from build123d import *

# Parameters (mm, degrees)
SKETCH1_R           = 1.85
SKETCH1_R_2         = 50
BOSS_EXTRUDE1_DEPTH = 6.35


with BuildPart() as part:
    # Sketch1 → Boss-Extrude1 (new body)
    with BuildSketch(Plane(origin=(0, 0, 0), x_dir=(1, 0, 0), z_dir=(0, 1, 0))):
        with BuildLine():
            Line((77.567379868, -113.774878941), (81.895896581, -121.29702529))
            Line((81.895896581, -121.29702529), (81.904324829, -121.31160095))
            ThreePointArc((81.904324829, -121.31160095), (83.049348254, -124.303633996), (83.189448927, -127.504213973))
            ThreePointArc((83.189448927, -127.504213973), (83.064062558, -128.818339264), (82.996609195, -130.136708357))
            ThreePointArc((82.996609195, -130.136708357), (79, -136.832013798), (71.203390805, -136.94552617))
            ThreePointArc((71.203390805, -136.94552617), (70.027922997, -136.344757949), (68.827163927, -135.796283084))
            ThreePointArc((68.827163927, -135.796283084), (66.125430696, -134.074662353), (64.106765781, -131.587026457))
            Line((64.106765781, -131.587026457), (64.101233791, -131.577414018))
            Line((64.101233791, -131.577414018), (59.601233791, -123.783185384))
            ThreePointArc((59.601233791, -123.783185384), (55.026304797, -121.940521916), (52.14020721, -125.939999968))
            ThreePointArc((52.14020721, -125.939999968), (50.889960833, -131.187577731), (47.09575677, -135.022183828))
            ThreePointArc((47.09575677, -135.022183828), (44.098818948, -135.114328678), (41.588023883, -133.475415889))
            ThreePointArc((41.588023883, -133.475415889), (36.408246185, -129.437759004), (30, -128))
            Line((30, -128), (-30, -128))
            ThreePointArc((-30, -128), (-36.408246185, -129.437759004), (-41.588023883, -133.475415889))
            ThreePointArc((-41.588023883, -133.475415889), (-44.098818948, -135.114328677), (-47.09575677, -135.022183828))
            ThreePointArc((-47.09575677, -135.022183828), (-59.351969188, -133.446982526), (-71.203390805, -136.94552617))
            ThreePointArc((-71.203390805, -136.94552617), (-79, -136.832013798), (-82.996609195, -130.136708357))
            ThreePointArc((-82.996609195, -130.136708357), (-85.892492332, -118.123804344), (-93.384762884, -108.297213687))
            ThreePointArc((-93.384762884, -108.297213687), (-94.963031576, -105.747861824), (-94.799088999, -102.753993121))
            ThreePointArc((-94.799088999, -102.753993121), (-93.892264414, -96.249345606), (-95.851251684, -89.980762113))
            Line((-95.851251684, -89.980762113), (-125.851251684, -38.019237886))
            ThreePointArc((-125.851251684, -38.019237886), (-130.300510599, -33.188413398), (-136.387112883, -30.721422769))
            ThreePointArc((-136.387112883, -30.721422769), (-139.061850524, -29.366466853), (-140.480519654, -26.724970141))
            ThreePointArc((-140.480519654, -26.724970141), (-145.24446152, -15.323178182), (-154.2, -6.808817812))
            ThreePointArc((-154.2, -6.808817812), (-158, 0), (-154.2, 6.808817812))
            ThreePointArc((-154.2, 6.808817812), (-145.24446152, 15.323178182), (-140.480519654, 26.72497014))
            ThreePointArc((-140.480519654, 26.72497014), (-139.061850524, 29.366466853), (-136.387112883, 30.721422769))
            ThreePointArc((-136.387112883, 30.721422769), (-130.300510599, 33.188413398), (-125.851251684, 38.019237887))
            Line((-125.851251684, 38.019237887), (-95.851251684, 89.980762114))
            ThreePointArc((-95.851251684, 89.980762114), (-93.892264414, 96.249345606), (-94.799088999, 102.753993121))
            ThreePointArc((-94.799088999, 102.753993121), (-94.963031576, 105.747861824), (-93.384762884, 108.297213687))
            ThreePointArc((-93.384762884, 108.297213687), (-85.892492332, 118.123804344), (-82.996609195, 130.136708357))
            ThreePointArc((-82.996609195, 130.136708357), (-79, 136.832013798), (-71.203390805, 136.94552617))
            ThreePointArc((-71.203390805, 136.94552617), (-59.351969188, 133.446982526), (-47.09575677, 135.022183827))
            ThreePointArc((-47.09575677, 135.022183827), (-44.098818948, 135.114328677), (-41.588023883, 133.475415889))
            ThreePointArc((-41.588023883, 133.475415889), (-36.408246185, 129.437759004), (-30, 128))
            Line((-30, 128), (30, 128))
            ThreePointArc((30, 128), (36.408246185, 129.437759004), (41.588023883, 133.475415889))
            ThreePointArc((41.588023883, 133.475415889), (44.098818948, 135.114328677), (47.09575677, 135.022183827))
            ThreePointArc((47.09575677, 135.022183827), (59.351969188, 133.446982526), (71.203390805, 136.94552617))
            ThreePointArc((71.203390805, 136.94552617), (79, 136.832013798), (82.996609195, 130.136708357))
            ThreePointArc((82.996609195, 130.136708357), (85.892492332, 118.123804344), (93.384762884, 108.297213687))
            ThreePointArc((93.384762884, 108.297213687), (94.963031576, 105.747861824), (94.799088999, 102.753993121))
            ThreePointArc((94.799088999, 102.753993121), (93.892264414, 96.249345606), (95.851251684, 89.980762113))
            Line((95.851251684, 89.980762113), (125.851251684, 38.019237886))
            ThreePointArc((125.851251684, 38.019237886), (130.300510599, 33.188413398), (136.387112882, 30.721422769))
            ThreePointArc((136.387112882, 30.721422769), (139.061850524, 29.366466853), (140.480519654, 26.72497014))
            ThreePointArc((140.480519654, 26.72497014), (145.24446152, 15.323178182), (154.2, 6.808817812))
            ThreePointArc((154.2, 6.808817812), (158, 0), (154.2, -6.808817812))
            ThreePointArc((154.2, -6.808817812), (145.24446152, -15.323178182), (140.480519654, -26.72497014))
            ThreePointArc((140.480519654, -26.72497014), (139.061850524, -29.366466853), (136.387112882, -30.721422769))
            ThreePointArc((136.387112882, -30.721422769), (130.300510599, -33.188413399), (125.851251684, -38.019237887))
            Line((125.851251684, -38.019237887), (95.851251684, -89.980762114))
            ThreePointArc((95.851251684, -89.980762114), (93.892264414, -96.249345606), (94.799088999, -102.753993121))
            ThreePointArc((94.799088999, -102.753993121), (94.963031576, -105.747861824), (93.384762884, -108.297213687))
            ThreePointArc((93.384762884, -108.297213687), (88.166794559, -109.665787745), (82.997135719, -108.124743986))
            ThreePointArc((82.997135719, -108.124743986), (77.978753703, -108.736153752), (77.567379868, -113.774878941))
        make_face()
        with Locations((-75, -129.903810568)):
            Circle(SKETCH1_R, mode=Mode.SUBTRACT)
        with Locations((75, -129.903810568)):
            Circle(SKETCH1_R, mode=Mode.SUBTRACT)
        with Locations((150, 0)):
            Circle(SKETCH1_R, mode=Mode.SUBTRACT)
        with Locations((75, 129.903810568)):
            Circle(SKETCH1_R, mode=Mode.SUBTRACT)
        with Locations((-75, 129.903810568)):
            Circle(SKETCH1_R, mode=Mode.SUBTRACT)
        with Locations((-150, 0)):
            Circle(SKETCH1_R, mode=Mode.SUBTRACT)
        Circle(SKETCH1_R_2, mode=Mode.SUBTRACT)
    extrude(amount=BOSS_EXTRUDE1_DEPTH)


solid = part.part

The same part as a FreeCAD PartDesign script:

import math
import FreeCAD as App
import Part
import Sketcher

V = App.Vector
Q = App.Units.Quantity

doc = App.newDocument("Part")
body = doc.addObject("PartDesign::Body", "Body")

# Sketch on XZ plane
sketch1 = body.newObject("Sketcher::SketchObject", "Sketch")
sketch1.AttachmentSupport = (doc.getObject("XZ_Plane"), [""])
sketch1.MapMode = "FlatFace"
sketch1.addGeometry([
    Part.LineSegment(V(81.895897, 121.297025, 0), V(77.56738, 113.774879, 0)),  # 0
    Part.ArcOfCircle(Part.Circle(V(80.862868, 111.507775, 0), V(0, 0, 1), 4), math.radians(145.474294), math.radians(302.246779)),  # 1
    Part.ArcOfCircle(Part.Circle(V(88.332805, 99.667166, 0), V(0, 0, 1), 10), math.radians(59.655653), math.radians(122.246779)),  # 2
    Part.ArcOfCircle(Part.Circle(V(90.118241, 104.511737, 0), V(0, 0, 1), 5), math.radians(-20.582072), math.radians(49.208798)),  # 3
    Part.ArcOfCircle(Part.Circle(V(108.841633, 97.480762, 0), V(0, 0, 1), 15), math.radians(159.417928), math.radians(210)),  # 4
    Part.LineSegment(V(95.851252, 89.980762, 0), V(125.851252, 38.019238, 0)),  # 5
    Part.ArcOfCircle(Part.Circle(V(138.841633, 45.519238, 0), V(0, 0, 1), 15), math.radians(-150), math.radians(-99.417928)),  # 6
    Part.ArcOfCircle(Part.Circle(V(135.56894, 25.788818, 0), V(0, 0, 1), 5), math.radians(10.791202), math.radians(80.582072)),  # 7
    Part.ArcOfCircle(Part.Circle(V(169.95, 32.341885, 0), V(0, 0, 1), 30), math.radians(-169.208798), math.radians(-121.668243)),  # 8
    Part.ArcOfCircle(Part.Circle(V(150, 0, 0), V(0, 0, 1), 8), math.radians(-58.331757), math.radians(58.331757)),  # 9
    Part.ArcOfCircle(Part.Circle(V(169.95, -32.341885, 0), V(0, 0, 1), 30), math.radians(121.668243), math.radians(169.208798)),  # 10
    Part.ArcOfCircle(Part.Circle(V(135.56894, -25.788818, 0), V(0, 0, 1), 5), math.radians(-80.582072), math.radians(-10.791202)),  # 11
    Part.ArcOfCircle(Part.Circle(V(138.841633, -45.519238, 0), V(0, 0, 1), 15), math.radians(99.417928), math.radians(150)),  # 12
    Part.LineSegment(V(125.851252, -38.019238, 0), V(95.851252, -89.980762, 0)),  # 13
    Part.ArcOfCircle(Part.Circle(V(108.841633, -97.480762, 0), V(0, 0, 1), 15), math.radians(150), math.radians(200.582072)),  # 14
    Part.ArcOfCircle(Part.Circle(V(90.118241, -104.511737, 0), V(0, 0, 1), 5), math.radians(-49.208798), math.radians(20.582072)),  # 15
    Part.ArcOfCircle(Part.Circle(V(112.983894, -131.010075, 0), V(0, 0, 1), 30), math.radians(130.791202), math.radians(178.331757)),  # 16
    Part.ArcOfCircle(Part.Circle(V(75, -129.903811, 0), V(0, 0, 1), 8), math.radians(-118.331757), math.radians(-1.668243)),  # 17
    Part.ArcOfCircle(Part.Circle(V(56.966106, -163.35196, 0), V(0, 0, 1), 30), math.radians(61.668243), math.radians(109.208798)),  # 18
    Part.ArcOfCircle(Part.Circle(V(45.450699, -130.300555, 0), V(0, 0, 1), 5), math.radians(-140.582072), math.radians(-70.791202)),  # 19
    Part.ArcOfCircle(Part.Circle(V(30, -143, 0), V(0, 0, 1), 15), math.radians(39.417928), math.radians(90)),  # 20
    Part.LineSegment(V(30, -128, 0), V(-30, -128, 0)),  # 21
    Part.ArcOfCircle(Part.Circle(V(-30, -143, 0), V(0, 0, 1), 15), math.radians(90), math.radians(140.582072)),  # 22
    Part.ArcOfCircle(Part.Circle(V(-45.450699, -130.300555, 0), V(0, 0, 1), 5), math.radians(-109.208798), math.radians(-39.417928)),  # 23
    Part.ArcOfCircle(Part.Circle(V(-56.966106, -163.35196, 0), V(0, 0, 1), 30), math.radians(70.791202), math.radians(118.331757)),  # 24
    Part.ArcOfCircle(Part.Circle(V(-75, -129.903811, 0), V(0, 0, 1), 8), math.radians(-178.331757), math.radians(-61.668243)),  # 25
    Part.ArcOfCircle(Part.Circle(V(-112.983894, -131.010075, 0), V(0, 0, 1), 30), math.radians(1.668243), math.radians(49.208798)),  # 26
    Part.ArcOfCircle(Part.Circle(V(-90.118241, -104.511737, 0), V(0, 0, 1), 5), math.radians(159.417928), math.radians(229.208798)),  # 27
    Part.ArcOfCircle(Part.Circle(V(-108.841633, -97.480762, 0), V(0, 0, 1), 15), math.radians(-20.582072), math.radians(30)),  # 28
    Part.LineSegment(V(-95.851252, -89.980762, 0), V(-125.851252, -38.019238, 0)),  # 29
    Part.ArcOfCircle(Part.Circle(V(-138.841633, -45.519238, 0), V(0, 0, 1), 15), math.radians(30), math.radians(80.582072)),  # 30
    Part.ArcOfCircle(Part.Circle(V(-135.56894, -25.788818, 0), V(0, 0, 1), 5), math.radians(-169.208798), math.radians(-99.417928)),  # 31
    Part.ArcOfCircle(Part.Circle(V(-169.95, -32.341885, 0), V(0, 0, 1), 30), math.radians(10.791202), math.radians(58.331757)),  # 32
    Part.ArcOfCircle(Part.Circle(V(-150, 0, 0), V(0, 0, 1), 8), math.radians(121.668243), math.radians(238.331757)),  # 33
    Part.ArcOfCircle(Part.Circle(V(-169.95, 32.341885, 0), V(0, 0, 1), 30), math.radians(-58.331757), math.radians(-10.791202)),  # 34
    Part.ArcOfCircle(Part.Circle(V(-135.56894, 25.788818, 0), V(0, 0, 1), 5), math.radians(99.417928), math.radians(169.208798)),  # 35
    Part.ArcOfCircle(Part.Circle(V(-138.841633, 45.519238, 0), V(0, 0, 1), 15), math.radians(-80.582072), math.radians(-30)),  # 36
    Part.LineSegment(V(-125.851252, 38.019238, 0), V(-95.851252, 89.980762, 0)),  # 37
    Part.ArcOfCircle(Part.Circle(V(-108.841633, 97.480762, 0), V(0, 0, 1), 15), math.radians(-30), math.radians(20.582072)),  # 38
    Part.ArcOfCircle(Part.Circle(V(-90.118241, 104.511737, 0), V(0, 0, 1), 5), math.radians(130.791202), math.radians(200.582072)),  # 39
    Part.ArcOfCircle(Part.Circle(V(-112.983894, 131.010075, 0), V(0, 0, 1), 30), math.radians(-49.208798), math.radians(-1.668243)),  # 40
    Part.ArcOfCircle(Part.Circle(V(-75, 129.903811, 0), V(0, 0, 1), 8), math.radians(61.668243), math.radians(178.331757)),  # 41
    Part.ArcOfCircle(Part.Circle(V(-56.966106, 163.35196, 0), V(0, 0, 1), 30), math.radians(-118.331757), math.radians(-70.791202)),  # 42
    Part.ArcOfCircle(Part.Circle(V(-45.450699, 130.300555, 0), V(0, 0, 1), 5), math.radians(39.417928), math.radians(109.208798)),  # 43
    Part.ArcOfCircle(Part.Circle(V(-30, 143, 0), V(0, 0, 1), 15), math.radians(-140.582072), math.radians(-90)),  # 44
    Part.LineSegment(V(-30, 128, 0), V(30, 128, 0)),  # 45
    Part.ArcOfCircle(Part.Circle(V(30, 143, 0), V(0, 0, 1), 15), math.radians(-90), math.radians(-39.417928)),  # 46
    Part.ArcOfCircle(Part.Circle(V(45.450699, 130.300555, 0), V(0, 0, 1), 5), math.radians(70.791202), math.radians(140.582072)),  # 47
    Part.ArcOfCircle(Part.Circle(V(42.147895, 126.332036, 0), V(0, 0, 1), 10), math.radians(-2.246779), math.radians(60.344347)),  # 48
    Part.ArcOfCircle(Part.Circle(V(56.137132, 125.783185, 0), V(0, 0, 1), 4), math.radians(177.753221), math.radians(330)),  # 49
    Part.LineSegment(V(59.601234, 123.783185, 0), V(64.101234, 131.577414, 0)),  # 50
    Part.LineSegment(V(64.101234, 131.577414, 0), V(64.106766, 131.587026, 0)),  # 51
    Part.ArcOfCircle(Part.Circle(V(72.78085, 126.611058, 0), V(0, 0, 1), 10), math.radians(113.288964), math.radians(150.158861)),  # 52
    Part.ArcOfCircle(Part.Circle(V(56.966106, 163.351959, 0), V(0, 0, 1), 30), math.radians(-66.711036), math.radians(-61.668243)),  # 53
    Part.ArcOfCircle(Part.Circle(V(75, 129.903811, 0), V(0, 0, 1), 8), math.radians(1.668243), math.radians(118.331757)),  # 54
    Part.ArcOfCircle(Part.Circle(V(112.983893, 131.010075, 0), V(0, 0, 1), 30), math.radians(-178.331757), math.radians(-173.288964)),  # 55
    Part.ArcOfCircle(Part.Circle(V(73.257967, 126.335594, 0), V(0, 0, 1), 10), math.radians(-30.158862), math.radians(6.711036)),  # 56
    Part.LineSegment(V(81.904325, 121.311601, 0), V(81.895897, 121.297025, 0)),  # 57
    Part.Circle(V(75, 129.903811, 0), V(0, 0, 1), 1.85),  # 58
    Part.Circle(V(-75, 129.903811, 0), V(0, 0, 1), 1.85),  # 59
    Part.Circle(V(150, 0, 0), V(0, 0, 1), 1.85),  # 60
    Part.Circle(V(75, -129.903811, 0), V(0, 0, 1), 1.85),  # 61
    Part.Circle(V(0, 0, 0), V(0, 0, 1), 50),  # 62
    Part.Circle(V(-150, 0, 0), V(0, 0, 1), 1.85),  # 63
    Part.Circle(V(-75, -129.903811, 0), V(0, 0, 1), 1.85),  # 64
], False)
sketch1.addConstraint([
    Sketcher.Constraint("Coincident", 0, 2, 1, 1),
    Sketcher.Constraint("Tangent", 1, 2, 2, 2),
    Sketcher.Constraint("Coincident", 2, 1, 3, 2),
    Sketcher.Constraint("Tangent", 3, 1, 4, 1),
    Sketcher.Constraint("Tangent", 4, 2, 5, 1),
    Sketcher.Constraint("Tangent", 5, 2, 6, 1),
    Sketcher.Constraint("Tangent", 6, 2, 7, 2),
    Sketcher.Constraint("Tangent", 7, 1, 8, 1),
    Sketcher.Constraint("Tangent", 8, 2, 9, 2),
    Sketcher.Constraint("Tangent", 9, 1, 10, 1),
    Sketcher.Constraint("Tangent", 10, 2, 11, 2),
    Sketcher.Constraint("Tangent", 11, 1, 12, 1),
    Sketcher.Constraint("Tangent", 12, 2, 13, 1),
    Sketcher.Constraint("Tangent", 13, 2, 14, 1),
    Sketcher.Constraint("Tangent", 14, 2, 15, 2),
    Sketcher.Constraint("Tangent", 15, 1, 16, 1),
    Sketcher.Constraint("Tangent", 16, 2, 17, 2),
    Sketcher.Constraint("Tangent", 17, 1, 18, 1),
    Sketcher.Constraint("Tangent", 18, 2, 19, 2),
    Sketcher.Constraint("Tangent", 19, 1, 20, 1),
    Sketcher.Constraint("Tangent", 20, 2, 21, 1),
    Sketcher.Constraint("Tangent", 21, 2, 22, 1),
    Sketcher.Constraint("Tangent", 22, 2, 23, 2),
    Sketcher.Constraint("Tangent", 23, 1, 24, 1),
    Sketcher.Constraint("Tangent", 24, 2, 25, 2),
    Sketcher.Constraint("Tangent", 25, 1, 26, 1),
    Sketcher.Constraint("Tangent", 26, 2, 27, 2),
    Sketcher.Constraint("Tangent", 27, 1, 28, 1),
    Sketcher.Constraint("Tangent", 28, 2, 29, 1),
    Sketcher.Constraint("Tangent", 29, 2, 30, 1),
    Sketcher.Constraint("Tangent", 30, 2, 31, 2),
    Sketcher.Constraint("Tangent", 31, 1, 32, 1),
    Sketcher.Constraint("Tangent", 32, 2, 33, 2),
    Sketcher.Constraint("Tangent", 33, 1, 34, 1),
    Sketcher.Constraint("Tangent", 34, 2, 35, 2),
    Sketcher.Constraint("Tangent", 35, 1, 36, 1),
    Sketcher.Constraint("Tangent", 36, 2, 37, 1),
    Sketcher.Constraint("Tangent", 37, 2, 38, 1),
    Sketcher.Constraint("Tangent", 38, 2, 39, 2),
    Sketcher.Constraint("Tangent", 39, 1, 40, 1),
    Sketcher.Constraint("Tangent", 40, 2, 41, 2),
    Sketcher.Constraint("Tangent", 41, 1, 42, 1),
    Sketcher.Constraint("Tangent", 42, 2, 43, 2),
    Sketcher.Constraint("Tangent", 43, 1, 44, 1),
    Sketcher.Constraint("Tangent", 44, 2, 45, 1),
    Sketcher.Constraint("Tangent", 45, 2, 46, 1),
    Sketcher.Constraint("Tangent", 46, 2, 47, 2),
    Sketcher.Constraint("Coincident", 47, 1, 48, 2),
    Sketcher.Constraint("Tangent", 48, 1, 49, 1),
    Sketcher.Constraint("Tangent", 49, 2, 50, 1),
    Sketcher.Constraint("Coincident", 50, 2, 51, 1),
    Sketcher.Constraint("Coincident", 51, 2, 52, 2),
    Sketcher.Constraint("Tangent", 52, 1, 53, 1),
    Sketcher.Constraint("Tangent", 53, 2, 54, 2),
    Sketcher.Constraint("Tangent", 54, 1, 55, 1),
    Sketcher.Constraint("Tangent", 55, 2, 56, 2),
    Sketcher.Constraint("Coincident", 56, 1, 57, 1),
    Sketcher.Constraint("Coincident", 57, 2, 0, 1),
    Sketcher.Constraint("Horizontal", 21),
    Sketcher.Constraint("Horizontal", 45),
    Sketcher.Constraint("Coincident", 62, 3, -1, 1),
    Sketcher.Constraint("Coincident", 58, 3, 54, 3),
    Sketcher.Constraint("Coincident", 59, 3, 41, 3),
    Sketcher.Constraint("Coincident", 60, 3, 9, 3),
    Sketcher.Constraint("Coincident", 61, 3, 17, 3),
    Sketcher.Constraint("Coincident", 63, 3, 33, 3),
    Sketcher.Constraint("Coincident", 64, 3, 25, 3),
    Sketcher.Constraint("Equal", 4, 6),
    Sketcher.Constraint("Equal", 3, 7),
    Sketcher.Constraint("Equal", 8, 10),
    Sketcher.Constraint("Equal", 7, 11),
    Sketcher.Constraint("Equal", 6, 12),
    Sketcher.Constraint("Equal", 12, 14),
    Sketcher.Constraint("Equal", 11, 15),
    Sketcher.Constraint("Equal", 10, 16),
    Sketcher.Constraint("Equal", 9, 17),
    Sketcher.Constraint("Equal", 16, 18),
    Sketcher.Constraint("Equal", 15, 19),
    Sketcher.Constraint("Equal", 14, 20),
    Sketcher.Constraint("Equal", 20, 22),
    Sketcher.Constraint("Equal", 19, 23),
    Sketcher.Constraint("Equal", 18, 24),
    Sketcher.Constraint("Equal", 17, 25),
    Sketcher.Constraint("Equal", 24, 26),
    Sketcher.Constraint("Equal", 23, 27),
    Sketcher.Constraint("Equal", 22, 28),
    Sketcher.Constraint("Equal", 28, 30),
    Sketcher.Constraint("Equal", 27, 31),
    Sketcher.Constraint("Equal", 26, 32),
    Sketcher.Constraint("Equal", 25, 33),
    Sketcher.Constraint("Equal", 32, 34),
    Sketcher.Constraint("Equal", 31, 35),
    Sketcher.Constraint("Equal", 30, 36),
    Sketcher.Constraint("Equal", 36, 38),
    Sketcher.Constraint("Equal", 35, 39),
    Sketcher.Constraint("Equal", 34, 40),
    Sketcher.Constraint("Equal", 33, 41),
    Sketcher.Constraint("Equal", 40, 42),
    Sketcher.Constraint("Equal", 39, 43),
    Sketcher.Constraint("Equal", 38, 44),
    Sketcher.Constraint("Equal", 44, 46),
    Sketcher.Constraint("Equal", 43, 47),
    Sketcher.Constraint("Equal", 2, 48),
    Sketcher.Constraint("Equal", 1, 49),
    Sketcher.Constraint("Equal", 48, 52),
    Sketcher.Constraint("Equal", 42, 53),
    Sketcher.Constraint("Equal", 41, 54),
    Sketcher.Constraint("Equal", 53, 55),
    Sketcher.Constraint("Equal", 52, 56),
    Sketcher.Constraint("Equal", 58, 59),
    Sketcher.Constraint("Equal", 59, 60),
    Sketcher.Constraint("Equal", 60, 61),
    Sketcher.Constraint("Equal", 61, 63),
    Sketcher.Constraint("Equal", 63, 64),
    Sketcher.Constraint("Symmetric", 3, 3, 27, 3, -1, 1),
    Sketcher.Constraint("Symmetric", 6, 3, 30, 3, -1, 1),
    Sketcher.Constraint("Symmetric", 8, 3, 32, 3, -1, 1),
    Sketcher.Constraint("Symmetric", 10, 3, 34, 3, -1, 1),
    Sketcher.Constraint("Symmetric", 12, 3, 36, 3, -1, 1),
    Sketcher.Constraint("Symmetric", 14, 3, 38, 3, -1, 1),
    Sketcher.Constraint("Symmetric", 16, 3, 40, 3, -1, 1),
    Sketcher.Constraint("Symmetric", 18, 3, 42, 3, -1, 1),
    Sketcher.Constraint("Symmetric", 20, 3, 44, 3, -1, 1),
    Sketcher.Constraint("Symmetric", 23, 3, 47, 3, -1, 1),
    Sketcher.Constraint("Symmetric", 24, 3, 53, 3, -1, 1),
    Sketcher.Constraint("Symmetric", 26, 3, 55, 3, -1, 1),
    Sketcher.Constraint("Symmetric", 19, 3, 23, 3, -2),
    Sketcher.Constraint("Symmetric", 17, 3, 25, 3, -2),
    Sketcher.Constraint("Symmetric", 15, 3, 27, 3, -2),
    Sketcher.Constraint("Symmetric", 12, 3, 30, 3, -2),
    Sketcher.Constraint("Symmetric", 10, 3, 32, 3, -2),
    Sketcher.Constraint("Parallel", 5, 29),
    Sketcher.Constraint("Parallel", 37, 50),
    Sketcher.Constraint("Horizontal", 14, 3, 28, 3),
    Sketcher.Constraint("Horizontal", 2, 1, 39, 1),
    Sketcher.Constraint("Horizontal", 42, 2, 47, 1),
    Sketcher.Constraint("Diameter", 62, 100.0),
    Sketcher.Constraint("Radius", 1, 4.0),
    Sketcher.Constraint("Radius", 2, 10.0),
    Sketcher.Constraint("Radius", 3, 5.0),
    Sketcher.Constraint("Radius", 4, 15.0),
    Sketcher.Constraint("Radius", 8, 30.0),
    Sketcher.Constraint("Radius", 9, 8.0),
    Sketcher.Constraint("Diameter", 58, 3.7),
    Sketcher.Constraint("DistanceX", 21, 2, 21, 1, 60.0),
    Sketcher.Constraint("Angle", 5, Q("-60 deg")),
    Sketcher.Constraint("Distance", 5, 60.0),
    Sketcher.Constraint("Distance", 50, 9.0),
    Sketcher.Constraint("DistanceX", -1, 1, 9, 3, 150.0),
    Sketcher.Constraint("DistanceX", -1, 1, 17, 3, 75.0),
    Sketcher.Constraint("DistanceY", 20, 3, -1, 1, 143.0),
    Sketcher.Constraint("DistanceX", -1, 1, 8, 2, 154.2),
    Sketcher.Constraint("DistanceY", -1, 1, 48, 1, 125.94),
    Sketcher.Constraint("DistanceX", -1, 1, 19, 3, 45.450699),
    Sketcher.Constraint("DistanceY", -1, 1, 56, 1, 121.311601),
    Sketcher.Constraint("Distance", 51, 0.011091),
    Sketcher.Constraint("DistanceX", -1, 1, 3, 3, 90.118241),
    Sketcher.Constraint("DistanceX", -1, 1, 7, 3, 135.56894),
    Sketcher.Constraint("DistanceY", 17, 3, -1, 1, 129.903811),
    Sketcher.Constraint("DistanceX", -1, 1, 52, 3, 72.78085),
    Sketcher.Constraint("DistanceX", -1, 1, 0, 2, 77.56738),
    Sketcher.Constraint("DistanceY", -1, 1, 0, 2, 113.774879),
    Sketcher.Constraint("DistanceX", -1, 1, 3, 1, 94.799089),
    Sketcher.Constraint("DistanceX", -1, 1, 55, 2, 83.189449),
    Sketcher.Constraint("Distance", 0, 8.678637),
    Sketcher.Constraint("DistanceX", -1, 1, 1, 3, 80.862868),
    Sketcher.Constraint("DistanceX", -1, 1, 48, 3, 42.147895),
    Sketcher.Constraint("DistanceX", -1, 1, 57, 2, 81.895897),
])
pad1 = body.newObject("PartDesign::Pad", "Pad")
pad1.Profile = sketch1
pad1.Length = 6.35
pad1.Reversed = True

doc.recompute()
